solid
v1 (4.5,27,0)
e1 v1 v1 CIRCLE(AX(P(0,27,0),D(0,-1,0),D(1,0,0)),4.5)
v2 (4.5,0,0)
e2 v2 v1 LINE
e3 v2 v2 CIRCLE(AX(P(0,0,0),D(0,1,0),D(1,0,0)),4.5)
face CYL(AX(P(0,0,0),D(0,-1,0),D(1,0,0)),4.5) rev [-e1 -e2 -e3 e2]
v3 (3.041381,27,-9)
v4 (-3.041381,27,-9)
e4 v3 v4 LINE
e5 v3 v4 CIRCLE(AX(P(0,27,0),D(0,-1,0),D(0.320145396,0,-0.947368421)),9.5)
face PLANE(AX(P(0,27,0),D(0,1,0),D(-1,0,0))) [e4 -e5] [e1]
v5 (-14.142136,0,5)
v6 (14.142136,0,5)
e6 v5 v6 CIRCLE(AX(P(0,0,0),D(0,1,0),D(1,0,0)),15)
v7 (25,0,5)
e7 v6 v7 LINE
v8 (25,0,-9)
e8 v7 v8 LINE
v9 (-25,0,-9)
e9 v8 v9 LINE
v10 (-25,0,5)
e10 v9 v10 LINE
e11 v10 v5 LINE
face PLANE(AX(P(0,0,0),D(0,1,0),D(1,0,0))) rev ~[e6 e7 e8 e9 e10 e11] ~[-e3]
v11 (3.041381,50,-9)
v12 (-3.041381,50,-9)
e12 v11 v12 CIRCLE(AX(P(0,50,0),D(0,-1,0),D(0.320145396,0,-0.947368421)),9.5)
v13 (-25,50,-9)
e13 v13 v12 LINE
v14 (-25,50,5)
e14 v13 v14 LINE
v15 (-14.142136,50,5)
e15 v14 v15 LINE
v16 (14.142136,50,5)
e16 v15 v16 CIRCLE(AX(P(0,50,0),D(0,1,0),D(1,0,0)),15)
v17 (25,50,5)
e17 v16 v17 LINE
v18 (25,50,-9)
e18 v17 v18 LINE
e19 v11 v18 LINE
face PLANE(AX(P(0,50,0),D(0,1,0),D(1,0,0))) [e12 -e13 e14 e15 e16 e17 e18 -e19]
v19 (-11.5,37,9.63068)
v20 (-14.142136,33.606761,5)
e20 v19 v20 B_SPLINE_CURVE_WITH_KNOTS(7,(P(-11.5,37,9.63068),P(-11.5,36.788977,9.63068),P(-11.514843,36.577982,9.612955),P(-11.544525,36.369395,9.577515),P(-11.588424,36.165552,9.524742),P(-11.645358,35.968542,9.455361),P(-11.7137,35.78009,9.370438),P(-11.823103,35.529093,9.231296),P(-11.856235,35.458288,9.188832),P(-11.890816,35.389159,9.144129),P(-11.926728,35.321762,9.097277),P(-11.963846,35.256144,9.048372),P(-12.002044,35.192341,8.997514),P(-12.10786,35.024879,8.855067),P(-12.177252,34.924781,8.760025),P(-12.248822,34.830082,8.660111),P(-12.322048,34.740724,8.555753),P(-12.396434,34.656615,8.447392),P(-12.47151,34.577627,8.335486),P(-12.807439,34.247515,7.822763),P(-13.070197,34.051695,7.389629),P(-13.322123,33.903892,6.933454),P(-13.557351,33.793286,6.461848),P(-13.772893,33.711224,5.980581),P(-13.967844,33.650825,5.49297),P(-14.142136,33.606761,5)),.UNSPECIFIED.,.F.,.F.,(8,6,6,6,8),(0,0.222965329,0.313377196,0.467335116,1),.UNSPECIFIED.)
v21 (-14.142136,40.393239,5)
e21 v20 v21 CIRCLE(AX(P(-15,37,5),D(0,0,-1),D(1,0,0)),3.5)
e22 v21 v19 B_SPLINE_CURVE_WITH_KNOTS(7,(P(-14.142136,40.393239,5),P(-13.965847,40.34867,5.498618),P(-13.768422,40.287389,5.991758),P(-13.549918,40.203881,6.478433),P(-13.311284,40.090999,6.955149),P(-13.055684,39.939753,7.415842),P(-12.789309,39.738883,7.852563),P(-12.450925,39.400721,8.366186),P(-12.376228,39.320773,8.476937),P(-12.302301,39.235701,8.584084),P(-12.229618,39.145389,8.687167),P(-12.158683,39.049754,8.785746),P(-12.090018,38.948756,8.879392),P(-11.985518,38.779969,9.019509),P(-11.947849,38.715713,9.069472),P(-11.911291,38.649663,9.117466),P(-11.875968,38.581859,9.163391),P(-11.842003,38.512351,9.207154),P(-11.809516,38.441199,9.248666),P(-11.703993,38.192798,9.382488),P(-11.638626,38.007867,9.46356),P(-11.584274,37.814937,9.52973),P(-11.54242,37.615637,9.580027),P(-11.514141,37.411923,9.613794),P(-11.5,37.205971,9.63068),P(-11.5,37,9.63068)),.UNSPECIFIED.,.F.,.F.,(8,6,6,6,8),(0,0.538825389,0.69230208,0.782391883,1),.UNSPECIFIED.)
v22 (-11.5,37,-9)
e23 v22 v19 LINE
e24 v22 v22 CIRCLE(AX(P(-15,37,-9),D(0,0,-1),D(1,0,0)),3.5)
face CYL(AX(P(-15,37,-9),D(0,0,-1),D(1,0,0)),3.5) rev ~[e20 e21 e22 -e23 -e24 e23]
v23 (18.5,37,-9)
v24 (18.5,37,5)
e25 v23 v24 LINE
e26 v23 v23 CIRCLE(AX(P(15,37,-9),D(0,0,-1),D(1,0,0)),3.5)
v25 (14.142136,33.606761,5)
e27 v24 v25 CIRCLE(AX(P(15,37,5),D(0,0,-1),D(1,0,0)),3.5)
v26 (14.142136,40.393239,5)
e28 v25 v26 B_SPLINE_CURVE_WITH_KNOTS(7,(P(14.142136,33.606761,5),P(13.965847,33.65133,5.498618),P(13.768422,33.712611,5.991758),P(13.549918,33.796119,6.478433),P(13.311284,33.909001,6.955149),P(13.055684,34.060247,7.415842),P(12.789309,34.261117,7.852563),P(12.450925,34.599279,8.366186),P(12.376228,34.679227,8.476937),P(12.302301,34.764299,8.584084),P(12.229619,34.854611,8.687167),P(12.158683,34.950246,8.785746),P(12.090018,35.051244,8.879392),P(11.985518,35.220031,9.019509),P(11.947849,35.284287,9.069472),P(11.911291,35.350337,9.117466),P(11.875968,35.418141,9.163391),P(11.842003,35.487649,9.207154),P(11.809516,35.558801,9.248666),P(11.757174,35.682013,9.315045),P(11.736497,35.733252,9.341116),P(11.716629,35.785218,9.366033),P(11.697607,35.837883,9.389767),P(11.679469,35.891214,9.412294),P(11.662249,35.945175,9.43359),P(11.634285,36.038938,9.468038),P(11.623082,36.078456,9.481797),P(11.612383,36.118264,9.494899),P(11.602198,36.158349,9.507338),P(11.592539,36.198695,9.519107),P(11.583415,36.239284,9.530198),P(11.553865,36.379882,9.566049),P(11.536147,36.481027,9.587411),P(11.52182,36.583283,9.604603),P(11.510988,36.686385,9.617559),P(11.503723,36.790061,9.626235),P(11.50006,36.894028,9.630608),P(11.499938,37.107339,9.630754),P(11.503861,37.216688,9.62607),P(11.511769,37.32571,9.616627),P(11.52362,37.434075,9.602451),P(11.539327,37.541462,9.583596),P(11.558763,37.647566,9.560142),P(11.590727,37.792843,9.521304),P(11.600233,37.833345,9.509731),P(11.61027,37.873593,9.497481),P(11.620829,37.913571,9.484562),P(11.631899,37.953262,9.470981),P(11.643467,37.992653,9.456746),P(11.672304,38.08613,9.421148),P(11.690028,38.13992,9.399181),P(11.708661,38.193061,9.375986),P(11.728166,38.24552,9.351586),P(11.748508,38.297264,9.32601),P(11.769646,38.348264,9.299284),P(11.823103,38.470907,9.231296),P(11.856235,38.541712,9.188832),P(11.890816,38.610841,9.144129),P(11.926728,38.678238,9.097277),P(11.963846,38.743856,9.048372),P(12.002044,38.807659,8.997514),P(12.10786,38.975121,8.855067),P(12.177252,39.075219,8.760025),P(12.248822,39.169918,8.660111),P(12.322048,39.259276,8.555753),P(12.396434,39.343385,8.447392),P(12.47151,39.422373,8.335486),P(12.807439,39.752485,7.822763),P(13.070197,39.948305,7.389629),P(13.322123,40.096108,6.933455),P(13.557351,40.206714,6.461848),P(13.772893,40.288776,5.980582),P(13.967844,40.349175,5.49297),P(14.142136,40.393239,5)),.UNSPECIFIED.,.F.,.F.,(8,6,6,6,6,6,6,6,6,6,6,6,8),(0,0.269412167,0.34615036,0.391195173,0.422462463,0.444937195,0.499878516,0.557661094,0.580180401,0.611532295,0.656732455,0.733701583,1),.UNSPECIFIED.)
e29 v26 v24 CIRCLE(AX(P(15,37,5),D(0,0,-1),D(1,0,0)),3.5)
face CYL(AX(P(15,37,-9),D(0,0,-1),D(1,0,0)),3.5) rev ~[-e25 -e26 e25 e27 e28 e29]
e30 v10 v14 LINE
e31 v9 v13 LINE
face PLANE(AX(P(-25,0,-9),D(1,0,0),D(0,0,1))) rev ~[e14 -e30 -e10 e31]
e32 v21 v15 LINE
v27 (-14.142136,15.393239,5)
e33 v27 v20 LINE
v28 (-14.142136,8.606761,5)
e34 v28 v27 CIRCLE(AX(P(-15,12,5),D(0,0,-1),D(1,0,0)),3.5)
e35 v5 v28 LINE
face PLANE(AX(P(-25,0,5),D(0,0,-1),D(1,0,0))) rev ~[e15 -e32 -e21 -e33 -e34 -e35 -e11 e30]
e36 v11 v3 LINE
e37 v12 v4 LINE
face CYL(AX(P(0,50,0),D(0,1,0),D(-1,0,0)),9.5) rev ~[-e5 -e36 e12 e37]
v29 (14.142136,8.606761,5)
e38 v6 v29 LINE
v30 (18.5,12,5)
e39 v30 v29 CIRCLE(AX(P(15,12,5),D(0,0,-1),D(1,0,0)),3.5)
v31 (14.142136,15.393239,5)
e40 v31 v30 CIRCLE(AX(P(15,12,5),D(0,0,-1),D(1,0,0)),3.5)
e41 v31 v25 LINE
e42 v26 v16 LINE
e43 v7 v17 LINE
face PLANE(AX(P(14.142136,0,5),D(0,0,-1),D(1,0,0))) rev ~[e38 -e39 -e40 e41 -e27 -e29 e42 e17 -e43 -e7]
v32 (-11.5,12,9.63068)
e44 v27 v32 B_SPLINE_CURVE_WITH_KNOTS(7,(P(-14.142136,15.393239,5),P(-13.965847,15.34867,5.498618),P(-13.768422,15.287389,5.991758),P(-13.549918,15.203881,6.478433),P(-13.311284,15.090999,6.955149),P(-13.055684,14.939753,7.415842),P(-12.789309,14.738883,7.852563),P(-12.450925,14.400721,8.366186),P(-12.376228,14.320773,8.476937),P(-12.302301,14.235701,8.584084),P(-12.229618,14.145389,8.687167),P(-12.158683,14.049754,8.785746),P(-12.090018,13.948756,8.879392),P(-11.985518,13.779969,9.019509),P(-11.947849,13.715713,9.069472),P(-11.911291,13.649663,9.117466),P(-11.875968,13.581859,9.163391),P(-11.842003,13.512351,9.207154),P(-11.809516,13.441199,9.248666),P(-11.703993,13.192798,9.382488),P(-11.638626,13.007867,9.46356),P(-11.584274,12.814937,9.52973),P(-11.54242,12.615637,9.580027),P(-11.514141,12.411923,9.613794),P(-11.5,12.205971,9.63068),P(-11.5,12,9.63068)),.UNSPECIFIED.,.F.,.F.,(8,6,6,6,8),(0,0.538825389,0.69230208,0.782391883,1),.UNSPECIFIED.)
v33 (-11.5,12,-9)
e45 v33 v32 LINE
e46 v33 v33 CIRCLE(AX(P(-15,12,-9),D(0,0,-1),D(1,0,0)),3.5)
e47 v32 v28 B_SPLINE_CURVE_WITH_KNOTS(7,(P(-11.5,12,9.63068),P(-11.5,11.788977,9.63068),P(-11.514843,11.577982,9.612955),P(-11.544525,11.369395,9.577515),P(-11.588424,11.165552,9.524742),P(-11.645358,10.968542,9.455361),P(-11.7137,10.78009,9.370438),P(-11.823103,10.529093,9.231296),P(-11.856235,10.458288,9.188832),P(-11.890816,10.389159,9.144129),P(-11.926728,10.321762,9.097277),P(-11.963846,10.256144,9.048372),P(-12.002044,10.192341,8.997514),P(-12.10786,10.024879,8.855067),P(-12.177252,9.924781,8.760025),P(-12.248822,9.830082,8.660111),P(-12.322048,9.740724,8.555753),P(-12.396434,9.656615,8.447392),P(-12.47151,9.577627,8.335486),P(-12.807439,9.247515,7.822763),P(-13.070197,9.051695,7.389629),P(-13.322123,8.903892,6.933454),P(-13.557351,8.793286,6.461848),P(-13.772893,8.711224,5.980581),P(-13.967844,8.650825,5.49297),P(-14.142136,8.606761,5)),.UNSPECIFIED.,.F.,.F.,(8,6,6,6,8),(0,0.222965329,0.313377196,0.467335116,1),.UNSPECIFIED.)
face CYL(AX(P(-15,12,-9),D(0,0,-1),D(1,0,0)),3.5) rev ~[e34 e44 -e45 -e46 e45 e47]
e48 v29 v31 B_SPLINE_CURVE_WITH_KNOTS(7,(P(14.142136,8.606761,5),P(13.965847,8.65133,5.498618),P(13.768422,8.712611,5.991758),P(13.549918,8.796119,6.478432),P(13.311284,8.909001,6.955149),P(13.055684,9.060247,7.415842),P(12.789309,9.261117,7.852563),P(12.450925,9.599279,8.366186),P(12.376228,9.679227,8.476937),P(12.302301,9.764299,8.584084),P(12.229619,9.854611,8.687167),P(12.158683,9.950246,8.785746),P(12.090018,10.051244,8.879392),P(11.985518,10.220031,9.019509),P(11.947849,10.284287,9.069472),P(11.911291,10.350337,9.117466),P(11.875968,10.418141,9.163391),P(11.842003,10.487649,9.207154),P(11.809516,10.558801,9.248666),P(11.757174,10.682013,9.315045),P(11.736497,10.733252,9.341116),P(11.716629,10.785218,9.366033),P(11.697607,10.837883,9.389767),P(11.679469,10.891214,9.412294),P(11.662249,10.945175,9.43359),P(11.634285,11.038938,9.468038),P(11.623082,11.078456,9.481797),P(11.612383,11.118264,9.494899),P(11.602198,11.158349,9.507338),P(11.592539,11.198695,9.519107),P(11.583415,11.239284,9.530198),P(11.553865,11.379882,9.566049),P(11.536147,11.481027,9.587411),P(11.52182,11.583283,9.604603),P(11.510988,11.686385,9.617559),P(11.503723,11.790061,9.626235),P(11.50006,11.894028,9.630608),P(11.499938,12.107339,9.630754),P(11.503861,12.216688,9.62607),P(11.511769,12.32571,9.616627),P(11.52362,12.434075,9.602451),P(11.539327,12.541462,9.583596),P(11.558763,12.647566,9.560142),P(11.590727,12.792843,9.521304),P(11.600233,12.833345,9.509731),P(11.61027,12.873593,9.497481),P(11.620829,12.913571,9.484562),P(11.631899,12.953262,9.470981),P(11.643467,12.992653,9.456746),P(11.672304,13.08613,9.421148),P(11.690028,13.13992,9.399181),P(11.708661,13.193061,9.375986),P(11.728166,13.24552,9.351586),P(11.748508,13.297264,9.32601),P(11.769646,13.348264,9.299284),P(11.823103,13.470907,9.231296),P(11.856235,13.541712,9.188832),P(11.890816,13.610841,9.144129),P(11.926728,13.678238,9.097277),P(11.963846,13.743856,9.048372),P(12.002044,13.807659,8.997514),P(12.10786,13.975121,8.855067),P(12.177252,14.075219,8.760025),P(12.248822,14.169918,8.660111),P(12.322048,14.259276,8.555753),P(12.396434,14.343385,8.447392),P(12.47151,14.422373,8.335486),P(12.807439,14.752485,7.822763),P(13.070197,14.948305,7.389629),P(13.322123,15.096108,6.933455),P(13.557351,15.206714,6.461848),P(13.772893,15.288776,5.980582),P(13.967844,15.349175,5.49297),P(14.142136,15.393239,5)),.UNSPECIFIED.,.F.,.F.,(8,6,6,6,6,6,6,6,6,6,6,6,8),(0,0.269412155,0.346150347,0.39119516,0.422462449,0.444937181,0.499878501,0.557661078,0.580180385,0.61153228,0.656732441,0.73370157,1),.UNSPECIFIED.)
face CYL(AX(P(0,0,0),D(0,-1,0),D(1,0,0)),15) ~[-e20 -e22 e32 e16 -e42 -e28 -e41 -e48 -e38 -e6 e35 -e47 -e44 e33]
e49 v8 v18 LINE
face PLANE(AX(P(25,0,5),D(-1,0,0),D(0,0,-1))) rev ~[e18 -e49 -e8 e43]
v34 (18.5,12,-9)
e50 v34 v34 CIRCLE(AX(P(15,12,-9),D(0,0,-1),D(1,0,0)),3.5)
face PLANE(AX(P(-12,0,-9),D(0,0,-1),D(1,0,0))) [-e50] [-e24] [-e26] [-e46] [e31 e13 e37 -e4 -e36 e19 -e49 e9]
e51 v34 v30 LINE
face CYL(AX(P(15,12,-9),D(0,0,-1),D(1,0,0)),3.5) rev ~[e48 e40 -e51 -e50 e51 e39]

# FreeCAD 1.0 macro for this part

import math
import FreeCAD as App
import Part
import Sketcher

V = App.Vector

doc = App.newDocument("Part")
body = doc.addObject("PartDesign::Body", "Body")

# Sketch on XZ plane
sketch1 = body.newObject("Sketcher::SketchObject", "Sketch")
sketch1.AttachmentSupport = (doc.getObject("XZ_Plane"), [""])
sketch1.MapMode = "FlatFace"
sketch1.addGeometry(Part.LineSegment(V(-25, -9, 0), V(-25, 5, 0)), False)
sketch1.addGeometry(Part.LineSegment(V(-25, 5, 0), V(-14.1, 5, 0)), False)
sketch1.addGeometry(Part.ArcOfCircle(Part.Circle(V(0, 0, 0), V(0, 0, 1), 15), math.radians(19), math.radians(161)), False)
sketch1.addGeometry(Part.LineSegment(V(14.1, 5, 0), V(25, 5, 0)), False)
sketch1.addGeometry(Part.LineSegment(V(25, 5, 0), V(25, -9, 0)), False)
sketch1.addGeometry(Part.LineSegment(V(25, -9, 0), V(-25, -9, 0)), False)
sketch1.addGeometry(Part.Circle(V(0, 0, 0), V(0, 0, 1), 4.5), False)
sketch1.addConstraint(Sketcher.Constraint("Coincident", 0, 2, 1, 1))
sketch1.addConstraint(Sketcher.Constraint("Coincident", 1, 2, 2, 2))
sketch1.addConstraint(Sketcher.Constraint("Coincident", 2, 1, 3, 1))
sketch1.addConstraint(Sketcher.Constraint("Coincident", 3, 2, 4, 1))
sketch1.addConstraint(Sketcher.Constraint("Coincident", 4, 2, 5, 1))
sketch1.addConstraint(Sketcher.Constraint("Coincident", 5, 2, 0, 1))
sketch1.addConstraint(Sketcher.Constraint("Vertical", 0))
sketch1.addConstraint(Sketcher.Constraint("Horizontal", 1))
sketch1.addConstraint(Sketcher.Constraint("Horizontal", 3))
sketch1.addConstraint(Sketcher.Constraint("Vertical", 4))
sketch1.addConstraint(Sketcher.Constraint("Horizontal", 5))
sketch1.addConstraint(Sketcher.Constraint("Coincident", 2, 3, -1, 1))
sketch1.addConstraint(Sketcher.Constraint("Coincident", 6, 3, -1, 1))
sketch1.addConstraint(Sketcher.Constraint("Symmetric", 0, 2, 3, 2, -2))
sketch1.addConstraint(Sketcher.Constraint("Diameter", 6, 9.0))
sketch1.addConstraint(Sketcher.Constraint("Radius", 2, 15.0))
sketch1.addConstraint(Sketcher.Constraint("DistanceY", 0, 1, 0, 2, 14.0))
sketch1.addConstraint(Sketcher.Constraint("DistanceX", 0, 2, -1, 1, 25.0))
sketch1.addConstraint(Sketcher.Constraint("DistanceY", 4, 2, -1, 1, 9.0))
pad1 = body.newObject("PartDesign::Pad", "Pad")
pad1.Profile = sketch1
pad1.Length = 50
pad1.Reversed = True

# Sketch on XY plane
sketch2 = body.newObject("Sketcher::SketchObject", "Sketch001")
sketch2.AttachmentSupport = (doc.getObject("XY_Plane"), [""])
sketch2.MapMode = "FlatFace"
sketch2.AttachmentOffset = App.Placement(V(0, 0, -9), App.Rotation())
sketch2.addGeometry(Part.Circle(V(-15, 12, 0), V(0, 0, 1), 3.5), False)
sketch2.addGeometry(Part.Circle(V(-15, 37, 0), V(0, 0, 1), 3.5), False)
sketch2.addGeometry(Part.Circle(V(15, 12, 0), V(0, 0, 1), 3.5), False)
sketch2.addGeometry(Part.Circle(V(15, 37, 0), V(0, 0, 1), 3.5), False)
sketch2.addConstraint(Sketcher.Constraint("Equal", 0, 1))
sketch2.addConstraint(Sketcher.Constraint("Equal", 1, 2))
sketch2.addConstraint(Sketcher.Constraint("Equal", 2, 3))
sketch2.addConstraint(Sketcher.Constraint("Symmetric", 0, 3, 2, 3, -2))
sketch2.addConstraint(Sketcher.Constraint("Symmetric", 1, 3, 3, 3, -2))
sketch2.addConstraint(Sketcher.Constraint("Vertical", 0, 3, 1, 3))
sketch2.addConstraint(Sketcher.Constraint("Diameter", 0, 7.0))
sketch2.addConstraint(Sketcher.Constraint("DistanceX", 0, 3, -1, 1, 15.0))
sketch2.addConstraint(Sketcher.Constraint("DistanceY", -1, 1, 0, 3, 12.0))
sketch2.addConstraint(Sketcher.Constraint("DistanceY", 0, 3, 1, 3, 25.0))
pocket1 = body.newObject("PartDesign::Pocket", "Pocket")
pocket1.Profile = sketch2
pocket1.Length = 26
pocket1.Reversed = True

# Sketch on XZ plane
sketch3 = body.newObject("Sketcher::SketchObject", "Sketch002")
sketch3.AttachmentSupport = (doc.getObject("XZ_Plane"), [""])
sketch3.MapMode = "FlatFace"
sketch3.AttachmentOffset = App.Placement(V(0, 0, -50), App.Rotation())
sketch3.addGeometry(Part.ArcOfCircle(Part.Circle(V(0, 0, 0), V(0, 0, 1), 9.5), math.radians(-71), math.radians(251)), False)
sketch3.addGeometry(Part.LineSegment(V(3, -9, 0), V(-3, -9, 0)), False)
sketch3.addGeometry(Part.Circle(V(0, 0, 0), V(0, 0, 1), 4.5), False)
sketch3.addConstraint(Sketcher.Constraint("Coincident", 0, 1, 1, 1))
sketch3.addConstraint(Sketcher.Constraint("Coincident", 1, 2, 0, 2))
sketch3.addConstraint(Sketcher.Constraint("Horizontal", 1))
sketch3.addConstraint(Sketcher.Constraint("Coincident", 0, 3, -1, 1))
sketch3.addConstraint(Sketcher.Constraint("Coincident", 2, 3, -1, 1))
sketch3.addConstraint(Sketcher.Constraint("Radius", 0, 9.5))
sketch3.addConstraint(Sketcher.Constraint("Diameter", 2, 9.0))
sketch3.addConstraint(Sketcher.Constraint("DistanceY", 0, 1, -1, 1, 9.0))
pocket2 = body.newObject("PartDesign::Pocket", "Pocket001")
pocket2.Profile = sketch3
pocket2.Length = 23
pocket2.Reversed = True

doc.recompute()
